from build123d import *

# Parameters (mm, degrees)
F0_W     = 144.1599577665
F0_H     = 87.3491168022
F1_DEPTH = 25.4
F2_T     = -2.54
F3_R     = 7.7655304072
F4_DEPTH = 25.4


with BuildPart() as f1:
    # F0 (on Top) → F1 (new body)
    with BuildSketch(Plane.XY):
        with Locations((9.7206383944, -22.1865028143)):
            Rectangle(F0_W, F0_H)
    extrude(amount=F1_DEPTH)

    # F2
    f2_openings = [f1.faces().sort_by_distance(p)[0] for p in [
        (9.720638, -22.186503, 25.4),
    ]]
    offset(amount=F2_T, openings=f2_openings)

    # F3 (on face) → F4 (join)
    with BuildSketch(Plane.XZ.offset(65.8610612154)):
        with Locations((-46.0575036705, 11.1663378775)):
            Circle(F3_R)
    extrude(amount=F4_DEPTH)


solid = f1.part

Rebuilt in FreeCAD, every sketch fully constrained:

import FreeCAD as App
import Part
import Sketcher
from FreeCAD import Vector
Q = App.Units.Quantity


def faces_at(feature, points):
    """Names of the faces that lie closest to the given points."""
    faces = feature.Shape.Faces
    near = lambda p: min(range(len(faces)), key=lambda i: faces[i].distToShape(Part.Vertex(*p))[0])
    return sorted({f"Face{near(p) + 1}" for p in points})


def add_polygon(sketch, points):
    """Adds a closed chain of lines whose ends are joined by coincident constraints."""
    first, n = sketch.GeometryCount, len(points)
    for a, b in zip(points, points[1:] + points[:1]):
        sketch.addGeometry(Part.LineSegment(App.Vector(*a, 0), App.Vector(*b, 0)), False)
    for i in range(n):
        sketch.addConstraint(Sketcher.Constraint("Coincident", first + i, 2, first + (i + 1) % n, 1))

doc = App.newDocument("Part")
body = doc.addObject("PartDesign::Body", "Body")

sketch1 = doc.addObject("Sketcher::SketchObject", "Sketch")
body.addObject(sketch1)
sketch1.AttachmentSupport = (doc.XY_Plane, [""])
sketch1.MapMode = "FlatFace"
add_polygon(sketch1, [(-62, 21), (-62, -66), (82, -66), (82, 21)])
sketch1.addConstraint([
    Sketcher.Constraint("Vertical", 0),
    Sketcher.Constraint("Horizontal", 1),
    Sketcher.Constraint("Vertical", 2),
    Sketcher.Constraint("Horizontal", 3),
    Sketcher.Constraint("DistanceX", 1, 1, 1, 2, 144.159958),
    Sketcher.Constraint("DistanceY", 0, 2, 0, 1, 87.349117),
    Sketcher.Constraint("DistanceX", 0, 2, -1, 1, 62.35934),
    Sketcher.Constraint("DistanceY", 0, 2, -1, 1, 65.861061),
])
pad1 = doc.addObject("PartDesign::Pad", "Pad")
body.addObject(pad1)
pad1.Profile = sketch1
pad1.Length = Q("1 in")
doc.recompute()

thickness = doc.addObject("PartDesign::Thickness", "Thickness")
body.addObject(thickness)
thickness.Base = (pad1, faces_at(pad1, [(9.721, -22.187, 25.4)]))
thickness.Value = Q("0.1 in")
thickness.Reversed = True
thickness.Join = "Arc"

sketch2 = doc.addObject("Sketcher::SketchObject", "Sketch001")
body.addObject(sketch2)
sketch2.AttachmentSupport = (doc.XZ_Plane, [""])
sketch2.MapMode = "FlatFace"
sketch2.AttachmentOffset = App.Placement(Vector(0, 0, 65.861061), App.Rotation())
sketch2.addGeometry(Part.Circle(Vector(-46, 11, 0), Vector(0, 0, 1), 8), False)
sketch2.addConstraint([
    Sketcher.Constraint("Diameter", 0, 15.531061),
    Sketcher.Constraint("DistanceX", 0, 3, -1, 1, 46.057504),
    Sketcher.Constraint("DistanceY", -1, 1, 0, 3, 11.166338),
])
pad2 = doc.addObject("PartDesign::Pad", "Pad001")
body.addObject(pad2)
pad2.Profile = sketch2
pad2.Length = Q("1 in")

doc.recompute()
